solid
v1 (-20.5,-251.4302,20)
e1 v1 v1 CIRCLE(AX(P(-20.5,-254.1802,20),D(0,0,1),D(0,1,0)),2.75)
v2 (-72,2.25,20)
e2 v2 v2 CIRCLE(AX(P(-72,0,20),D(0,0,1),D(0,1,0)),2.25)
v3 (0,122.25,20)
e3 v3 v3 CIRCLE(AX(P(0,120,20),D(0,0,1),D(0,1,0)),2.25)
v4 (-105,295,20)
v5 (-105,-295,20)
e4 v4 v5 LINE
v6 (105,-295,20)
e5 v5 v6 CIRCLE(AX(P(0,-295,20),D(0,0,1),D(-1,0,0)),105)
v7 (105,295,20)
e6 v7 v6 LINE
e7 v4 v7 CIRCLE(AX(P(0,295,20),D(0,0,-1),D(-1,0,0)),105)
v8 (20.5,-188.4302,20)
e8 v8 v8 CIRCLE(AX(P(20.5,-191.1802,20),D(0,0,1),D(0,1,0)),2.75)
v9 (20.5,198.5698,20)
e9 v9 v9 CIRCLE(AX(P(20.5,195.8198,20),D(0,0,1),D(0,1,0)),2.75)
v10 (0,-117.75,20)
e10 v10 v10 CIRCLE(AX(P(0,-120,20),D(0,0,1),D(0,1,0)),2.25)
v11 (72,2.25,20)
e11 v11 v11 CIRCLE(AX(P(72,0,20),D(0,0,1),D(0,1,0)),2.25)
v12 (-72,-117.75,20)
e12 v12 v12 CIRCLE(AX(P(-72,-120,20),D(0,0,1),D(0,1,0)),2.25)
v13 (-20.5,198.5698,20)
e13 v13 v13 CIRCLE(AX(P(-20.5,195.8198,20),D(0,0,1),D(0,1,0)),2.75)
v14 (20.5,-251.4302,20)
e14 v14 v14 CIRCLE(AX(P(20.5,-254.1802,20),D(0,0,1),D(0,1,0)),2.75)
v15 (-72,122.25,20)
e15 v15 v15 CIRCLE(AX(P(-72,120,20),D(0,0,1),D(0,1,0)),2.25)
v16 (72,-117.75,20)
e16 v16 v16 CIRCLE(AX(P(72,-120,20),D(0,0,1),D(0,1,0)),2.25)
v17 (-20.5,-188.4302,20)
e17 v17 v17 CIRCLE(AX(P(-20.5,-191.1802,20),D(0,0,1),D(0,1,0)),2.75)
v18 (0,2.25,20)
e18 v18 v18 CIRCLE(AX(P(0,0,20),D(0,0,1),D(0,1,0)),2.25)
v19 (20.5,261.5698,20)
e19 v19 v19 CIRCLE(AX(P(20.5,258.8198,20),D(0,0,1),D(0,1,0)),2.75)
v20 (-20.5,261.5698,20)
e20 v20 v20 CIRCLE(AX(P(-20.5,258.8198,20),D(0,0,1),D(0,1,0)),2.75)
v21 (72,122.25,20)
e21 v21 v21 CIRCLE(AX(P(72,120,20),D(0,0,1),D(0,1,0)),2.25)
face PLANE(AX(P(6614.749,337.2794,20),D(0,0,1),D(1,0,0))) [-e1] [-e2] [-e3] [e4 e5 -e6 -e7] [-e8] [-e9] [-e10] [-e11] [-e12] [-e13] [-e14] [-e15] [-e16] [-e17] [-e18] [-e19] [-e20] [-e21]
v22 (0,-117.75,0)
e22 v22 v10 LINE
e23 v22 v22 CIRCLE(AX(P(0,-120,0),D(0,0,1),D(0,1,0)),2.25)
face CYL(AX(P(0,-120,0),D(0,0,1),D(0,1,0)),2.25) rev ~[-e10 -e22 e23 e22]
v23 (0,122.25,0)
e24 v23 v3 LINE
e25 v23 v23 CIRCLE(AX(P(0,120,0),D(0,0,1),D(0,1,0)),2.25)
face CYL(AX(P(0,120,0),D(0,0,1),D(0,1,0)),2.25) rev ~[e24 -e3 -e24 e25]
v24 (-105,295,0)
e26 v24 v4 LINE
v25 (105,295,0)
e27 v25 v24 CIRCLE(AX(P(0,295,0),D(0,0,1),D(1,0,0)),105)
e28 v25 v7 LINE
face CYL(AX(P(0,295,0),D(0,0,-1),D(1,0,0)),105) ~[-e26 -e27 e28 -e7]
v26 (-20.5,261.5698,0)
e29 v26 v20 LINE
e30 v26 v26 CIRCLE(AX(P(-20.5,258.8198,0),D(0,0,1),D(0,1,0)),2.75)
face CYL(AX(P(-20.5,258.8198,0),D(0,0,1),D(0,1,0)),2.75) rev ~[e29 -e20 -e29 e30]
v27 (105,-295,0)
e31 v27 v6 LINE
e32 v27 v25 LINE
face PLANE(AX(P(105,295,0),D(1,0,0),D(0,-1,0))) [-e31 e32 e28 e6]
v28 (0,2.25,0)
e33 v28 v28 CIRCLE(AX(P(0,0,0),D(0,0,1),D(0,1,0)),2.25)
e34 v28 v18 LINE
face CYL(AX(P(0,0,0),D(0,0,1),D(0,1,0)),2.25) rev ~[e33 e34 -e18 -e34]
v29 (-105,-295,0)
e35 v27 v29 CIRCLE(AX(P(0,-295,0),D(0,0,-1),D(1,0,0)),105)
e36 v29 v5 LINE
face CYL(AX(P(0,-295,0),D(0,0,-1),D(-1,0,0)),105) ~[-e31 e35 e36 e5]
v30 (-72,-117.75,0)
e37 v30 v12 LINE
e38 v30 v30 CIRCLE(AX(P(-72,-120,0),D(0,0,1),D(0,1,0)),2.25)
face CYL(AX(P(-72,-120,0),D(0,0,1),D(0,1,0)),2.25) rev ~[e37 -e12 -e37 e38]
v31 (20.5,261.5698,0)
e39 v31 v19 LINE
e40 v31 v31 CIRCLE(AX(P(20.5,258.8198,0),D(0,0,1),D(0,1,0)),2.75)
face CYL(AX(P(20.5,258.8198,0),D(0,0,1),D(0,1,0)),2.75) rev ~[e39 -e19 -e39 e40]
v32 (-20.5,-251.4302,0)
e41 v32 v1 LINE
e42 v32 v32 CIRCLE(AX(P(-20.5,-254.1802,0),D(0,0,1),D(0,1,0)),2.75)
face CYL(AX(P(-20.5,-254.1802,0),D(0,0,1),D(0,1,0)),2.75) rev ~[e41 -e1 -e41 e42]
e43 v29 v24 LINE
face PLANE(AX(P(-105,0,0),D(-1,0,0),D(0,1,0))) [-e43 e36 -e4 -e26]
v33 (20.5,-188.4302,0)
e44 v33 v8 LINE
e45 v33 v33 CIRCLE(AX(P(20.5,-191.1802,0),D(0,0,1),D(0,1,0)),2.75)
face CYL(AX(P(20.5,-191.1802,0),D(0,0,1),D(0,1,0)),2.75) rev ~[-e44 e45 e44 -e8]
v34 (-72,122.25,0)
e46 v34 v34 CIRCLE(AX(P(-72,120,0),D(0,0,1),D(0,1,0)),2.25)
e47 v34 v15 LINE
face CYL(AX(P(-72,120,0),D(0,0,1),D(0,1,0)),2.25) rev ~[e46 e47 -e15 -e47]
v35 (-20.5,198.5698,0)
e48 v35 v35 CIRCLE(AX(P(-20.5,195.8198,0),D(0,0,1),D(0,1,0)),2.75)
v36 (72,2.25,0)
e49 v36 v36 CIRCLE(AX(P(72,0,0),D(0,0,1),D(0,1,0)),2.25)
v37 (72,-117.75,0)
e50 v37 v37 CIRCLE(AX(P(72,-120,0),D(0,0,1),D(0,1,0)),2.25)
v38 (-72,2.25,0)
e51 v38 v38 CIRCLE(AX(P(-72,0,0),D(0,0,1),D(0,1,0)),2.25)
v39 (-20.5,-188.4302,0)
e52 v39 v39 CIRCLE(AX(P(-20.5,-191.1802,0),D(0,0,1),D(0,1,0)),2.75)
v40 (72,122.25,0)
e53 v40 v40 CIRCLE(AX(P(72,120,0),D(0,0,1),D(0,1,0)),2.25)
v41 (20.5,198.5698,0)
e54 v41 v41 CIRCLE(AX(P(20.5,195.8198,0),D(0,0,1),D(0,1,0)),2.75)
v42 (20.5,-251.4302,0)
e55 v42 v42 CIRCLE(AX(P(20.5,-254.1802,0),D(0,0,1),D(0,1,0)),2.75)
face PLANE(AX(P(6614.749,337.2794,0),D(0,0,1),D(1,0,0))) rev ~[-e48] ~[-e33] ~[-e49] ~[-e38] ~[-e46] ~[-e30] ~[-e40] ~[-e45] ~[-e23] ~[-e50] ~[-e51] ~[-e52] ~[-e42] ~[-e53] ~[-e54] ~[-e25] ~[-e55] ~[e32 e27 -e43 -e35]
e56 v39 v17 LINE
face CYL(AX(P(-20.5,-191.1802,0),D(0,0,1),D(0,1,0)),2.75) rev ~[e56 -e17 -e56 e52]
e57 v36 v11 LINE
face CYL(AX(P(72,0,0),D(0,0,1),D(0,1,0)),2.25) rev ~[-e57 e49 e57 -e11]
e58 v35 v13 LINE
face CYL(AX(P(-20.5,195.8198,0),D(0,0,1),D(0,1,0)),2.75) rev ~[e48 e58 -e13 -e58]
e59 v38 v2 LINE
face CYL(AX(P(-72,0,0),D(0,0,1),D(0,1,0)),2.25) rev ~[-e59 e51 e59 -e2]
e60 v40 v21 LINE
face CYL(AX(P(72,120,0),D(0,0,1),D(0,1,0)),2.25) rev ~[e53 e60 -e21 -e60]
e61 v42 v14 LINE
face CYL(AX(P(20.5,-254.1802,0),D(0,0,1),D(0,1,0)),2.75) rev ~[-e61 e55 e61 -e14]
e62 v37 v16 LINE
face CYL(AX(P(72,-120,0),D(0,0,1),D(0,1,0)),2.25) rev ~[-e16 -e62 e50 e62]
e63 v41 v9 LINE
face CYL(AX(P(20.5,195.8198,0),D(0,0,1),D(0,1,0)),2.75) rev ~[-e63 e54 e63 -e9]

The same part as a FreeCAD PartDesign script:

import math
import FreeCAD as App
import Part
import Sketcher

V = App.Vector
Q = App.Units.Quantity

doc = App.newDocument("Part")
params = doc.addObject("Spreadsheet::Sheet", "Params")
for row, (alias, value) in enumerate([
    ("sketch1_radius", "105 mm"),
    ("sketch1_height", "590 mm"),
    ("pad1_length", "20 mm"),
    ("sketch2_diameter", "5.5 mm"),
    ("hole_diameter", "5.5 mm"),
    ("sketch3_diameter", "4.5 mm"),
    ("hole2_diameter", "4.5 mm"),
], start=1):
    params.set(f"A{row}", alias)
    params.set(f"B{row}", "=" + value)
    params.setAlias(f"B{row}", alias)

body = doc.addObject("PartDesign::Body", "Body")

# Sketch on XY plane
sketch1 = body.newObject("Sketcher::SketchObject", "Sketch")
sketch1.AttachmentSupport = (doc.getObject("XY_Plane"), [""])
sketch1.MapMode = "FlatFace"
sketch1.addGeometry(Part.ArcOfCircle(Part.Circle(V(0, 295, 0), V(0, 0, 1), 105), math.radians(0), math.radians(180)), False)
sketch1.addGeometry(Part.LineSegment(V(-105, 295, 0), V(-105, -295, 0)), False)
sketch1.addGeometry(Part.ArcOfCircle(Part.Circle(V(0, -295, 0), V(0, 0, 1), 105), math.radians(180), math.radians(360)), False)
sketch1.addGeometry(Part.LineSegment(V(105, -295, 0), V(105, 295, 0)), False)
sketch1.addConstraint(Sketcher.Constraint("Tangent", 0, 2, 1, 1))
sketch1.addConstraint(Sketcher.Constraint("Tangent", 1, 2, 2, 1))
sketch1.addConstraint(Sketcher.Constraint("Tangent", 2, 2, 3, 1))
sketch1.addConstraint(Sketcher.Constraint("Tangent", 3, 2, 0, 1))
sketch1.addConstraint(Sketcher.Constraint("Vertical", 1))
sketch1.addConstraint(Sketcher.Constraint("Vertical", 3))
sketch1.addConstraint(Sketcher.Constraint("Symmetric", 0, 3, 2, 3, -1, 1))
sketch1.addConstraint(Sketcher.Constraint("Radius", 0, Q("105 mm")))
sketch1.addConstraint(Sketcher.Constraint("DistanceY", 1, 2, 1, 1, Q("590 mm")))
sketch1.setExpression("Constraints[7]", "Params.sketch1_radius")
sketch1.setExpression("Constraints[8]", "Params.sketch1_height")
pad1 = body.newObject("PartDesign::Pad", "Pad")
pad1.Profile = sketch1
pad1.setExpression("Length", "Params.pad1_length")

# Sketch on XY plane
sketch2 = body.newObject("Sketcher::SketchObject", "Sketch001")
sketch2.AttachmentSupport = (doc.getObject("XY_Plane"), [""])
sketch2.MapMode = "FlatFace"
sketch2.addGeometry(Part.Circle(V(-20.5, -191.2, 0), V(0, 0, 1), 2.8), False)
sketch2.addGeometry(Part.Circle(V(20.5, -191.2, 0), V(0, 0, 1), 2.8), False)
sketch2.addGeometry(Part.Circle(V(20.5, -254.2, 0), V(0, 0, 1), 2.8), False)
sketch2.addGeometry(Part.Circle(V(-20.5, -254.2, 0), V(0, 0, 1), 2.8), False)
sketch2.addGeometry(Part.Circle(V(-20.5, 258.8, 0), V(0, 0, 1), 2.8), False)
sketch2.addGeometry(Part.Circle(V(20.5, 258.8, 0), V(0, 0, 1), 2.8), False)
sketch2.addGeometry(Part.Circle(V(-20.5, 195.8, 0), V(0, 0, 1), 2.8), False)
sketch2.addGeometry(Part.Circle(V(20.5, 195.8, 0), V(0, 0, 1), 2.8), False)
sketch2.addConstraint(Sketcher.Constraint("Equal", 0, 1))
sketch2.addConstraint(Sketcher.Constraint("Equal", 1, 2))
sketch2.addConstraint(Sketcher.Constraint("Equal", 2, 3))
sketch2.addConstraint(Sketcher.Constraint("Equal", 3, 4))
sketch2.addConstraint(Sketcher.Constraint("Equal", 4, 5))
sketch2.addConstraint(Sketcher.Constraint("Equal", 5, 6))
sketch2.addConstraint(Sketcher.Constraint("Equal", 6, 7))
sketch2.addConstraint(Sketcher.Constraint("Symmetric", 0, 3, 1, 3, -2))
sketch2.addConstraint(Sketcher.Constraint("Symmetric", 2, 3, 3, 3, -2))
sketch2.addConstraint(Sketcher.Constraint("Symmetric", 4, 3, 5, 3, -2))
sketch2.addConstraint(Sketcher.Constraint("Symmetric", 6, 3, 7, 3, -2))
sketch2.addConstraint(Sketcher.Constraint("Vertical", 1, 3, 2, 3))
sketch2.addConstraint(Sketcher.Constraint("Vertical", 3, 3, 4, 3))
sketch2.addConstraint(Sketcher.Constraint("Vertical", 4, 3, 6, 3))
sketch2.addConstraint(Sketcher.Constraint("Diameter", 0, Q("5.5 mm")))
sketch2.addConstraint(Sketcher.Constraint("DistanceX", 0, 3, 1, 3, Q("41 mm")))
sketch2.addConstraint(Sketcher.Constraint("DistanceY", 2, 3, 1, 3, Q("63 mm")))
sketch2.addConstraint(Sketcher.Constraint("DistanceY", 0, 3, 4, 3, Q("450 mm")))
sketch2.addConstraint(Sketcher.Constraint("DistanceY", 6, 3, 4, 3, Q("63 mm")))
sketch2.addConstraint(Sketcher.Constraint("DistanceY", 0, 3, -1, 1, Q("191.1802 mm")))
sketch2.setExpression("Constraints[14]", "Params.sketch2_diameter")
doc.recompute()
hole = body.newObject("PartDesign::Hole", "Hole")
hole.Profile = sketch2
hole.ThreadType = "None"
hole.setExpression("Diameter", "Params.hole_diameter")
hole.DepthType = "ThroughAll"
hole.Reversed = True

# Sketch on XY plane
sketch3 = body.newObject("Sketcher::SketchObject", "Sketch002")
sketch3.AttachmentSupport = (doc.getObject("XY_Plane"), [""])
sketch3.MapMode = "FlatFace"
sketch3.addGeometry(Part.Circle(V(0, 0, 0), V(0, 0, 1), 2.2), False)
sketch3.addGeometry(Part.Circle(V(72, 0, 0), V(0, 0, 1), 2.2), False)
sketch3.addGeometry(Part.Circle(V(72, -120, 0), V(0, 0, 1), 2.2), False)
sketch3.addGeometry(Part.Circle(V(0, -120, 0), V(0, 0, 1), 2.2), False)
sketch3.addGeometry(Part.Circle(V(0, 120, 0), V(0, 0, 1), 2.2), False)
sketch3.addGeometry(Part.Circle(V(72, 120, 0), V(0, 0, 1), 2.2), False)
sketch3.addGeometry(Part.Circle(V(-72, -120, 0), V(0, 0, 1), 2.2), False)
sketch3.addGeometry(Part.Circle(V(-72, 0, 0), V(0, 0, 1), 2.2), False)
sketch3.addGeometry(Part.Circle(V(-72, 120, 0), V(0, 0, 1), 2.2), False)
sketch3.addConstraint(Sketcher.Constraint("Coincident", 0, 3, -1, 1))
sketch3.addConstraint(Sketcher.Constraint("Equal", 0, 1))
sketch3.addConstraint(Sketcher.Constraint("Equal", 1, 2))
sketch3.addConstraint(Sketcher.Constraint("Equal", 2, 3))
sketch3.addConstraint(Sketcher.Constraint("Equal", 3, 4))
sketch3.addConstraint(Sketcher.Constraint("Equal", 4, 5))
sketch3.addConstraint(Sketcher.Constraint("Equal", 5, 6))
sketch3.addConstraint(Sketcher.Constraint("Equal", 6, 7))
sketch3.addConstraint(Sketcher.Constraint("Equal", 7, 8))
sketch3.addConstraint(Sketcher.Constraint("Symmetric", 3, 3, 4, 3, -1, 1))
sketch3.addConstraint(Sketcher.Constraint("Symmetric", 5, 3, 6, 3, -1, 1))
sketch3.addConstraint(Sketcher.Constraint("Symmetric", 1, 3, 7, 3, -1, 1))
sketch3.addConstraint(Sketcher.Constraint("Symmetric", 2, 3, 8, 3, -1, 1))
sketch3.addConstraint(Sketcher.Constraint("Symmetric", 2, 3, 6, 3, -2))
sketch3.addConstraint(Sketcher.Constraint("PointOnObject", 1, 3, -1))
sketch3.addConstraint(Sketcher.Constraint("PointOnObject", 3, 3, -2))
sketch3.addConstraint(Sketcher.Constraint("Horizontal", 2, 3, 3, 3))
sketch3.addConstraint(Sketcher.Constraint("Vertical", 1, 3, 2, 3))
sketch3.addConstraint(Sketcher.Constraint("Diameter", 0, Q("4.5 mm")))
sketch3.addConstraint(Sketcher.Constraint("DistanceX", -1, 1, 1, 3, Q("72 mm")))
sketch3.addConstraint(Sketcher.Constraint("DistanceY", 2, 3, -1, 1, Q("120 mm")))
sketch3.setExpression("Constraints[18]", "Params.sketch3_diameter")
doc.recompute()
hole2 = body.newObject("PartDesign::Hole", "Hole001")
hole2.Profile = sketch3
hole2.ThreadType = "None"
hole2.setExpression("Diameter", "Params.hole2_diameter")
hole2.DepthType = "ThroughAll"
hole2.Reversed = True

doc.recompute()
